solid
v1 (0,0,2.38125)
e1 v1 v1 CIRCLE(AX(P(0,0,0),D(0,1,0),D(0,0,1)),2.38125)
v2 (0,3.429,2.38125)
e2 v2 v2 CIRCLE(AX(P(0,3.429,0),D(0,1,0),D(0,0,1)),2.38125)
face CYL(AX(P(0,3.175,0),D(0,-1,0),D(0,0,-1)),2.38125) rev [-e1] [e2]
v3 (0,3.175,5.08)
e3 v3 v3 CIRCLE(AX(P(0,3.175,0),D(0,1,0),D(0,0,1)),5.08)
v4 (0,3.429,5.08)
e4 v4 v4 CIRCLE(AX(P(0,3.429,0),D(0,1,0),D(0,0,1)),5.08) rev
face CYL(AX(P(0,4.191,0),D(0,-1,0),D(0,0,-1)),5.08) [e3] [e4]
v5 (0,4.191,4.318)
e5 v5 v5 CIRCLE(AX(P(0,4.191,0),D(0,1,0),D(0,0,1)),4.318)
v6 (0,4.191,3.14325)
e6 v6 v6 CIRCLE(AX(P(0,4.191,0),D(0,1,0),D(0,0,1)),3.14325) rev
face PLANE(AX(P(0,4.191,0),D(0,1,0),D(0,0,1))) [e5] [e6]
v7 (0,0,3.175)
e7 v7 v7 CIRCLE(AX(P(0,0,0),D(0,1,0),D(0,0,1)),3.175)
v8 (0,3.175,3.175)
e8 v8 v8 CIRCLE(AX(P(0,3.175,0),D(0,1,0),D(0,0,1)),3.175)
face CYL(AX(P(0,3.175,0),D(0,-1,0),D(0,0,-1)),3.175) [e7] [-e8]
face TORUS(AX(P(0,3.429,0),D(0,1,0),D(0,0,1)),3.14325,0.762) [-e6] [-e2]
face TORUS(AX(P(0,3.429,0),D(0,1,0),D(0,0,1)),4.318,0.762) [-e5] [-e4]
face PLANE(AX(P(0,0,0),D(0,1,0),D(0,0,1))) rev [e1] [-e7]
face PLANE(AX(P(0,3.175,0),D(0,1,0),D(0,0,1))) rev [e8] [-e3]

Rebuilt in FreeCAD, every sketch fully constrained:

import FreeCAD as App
import Part
import Sketcher
Q = App.Units.Quantity


def edges_at(feature, points):
    """Names of the edges that pass closest to the given points."""
    edges = feature.Shape.Edges
    near = lambda p: min(range(len(edges)), key=lambda i: edges[i].distToShape(Part.Vertex(*p))[0])
    return sorted({f"Edge{near(p) + 1}" for p in points})

doc = App.newDocument("Part")
body = doc.addObject("PartDesign::Body", "Body")

# Sketch on XZ plane
sketch1 = body.newObject("Sketcher::SketchObject", "Sketch")
sketch1.AttachmentSupport = (doc.getObject("XZ_Plane"), [""])
sketch1.MapMode = "FlatFace"
sketch1.addGeometry(Part.Circle(App.Vector(0, 0, 0), App.Vector(0, 0, 1), 3.175), False)
sketch1.addGeometry(Part.Circle(App.Vector(0, 0, 0), App.Vector(0, 0, 1), 2.38125), False)
sketch1.addConstraint(Sketcher.Constraint("Coincident", 0, 3, -1, 1))
sketch1.addConstraint(Sketcher.Constraint("Coincident", 1, 3, -1, 1))
sketch1.addConstraint(Sketcher.Constraint("Diameter", 0, Q("0.25 in")))
sketch1.addConstraint(Sketcher.Constraint("Diameter", 1, Q("0.1875 in")))
pad1 = body.newObject("PartDesign::Pad", "Pad")
pad1.Profile = sketch1
pad1.Length = Q("0.125 in")
pad1.Reversed = True

# Sketch on XZ plane
sketch2 = body.newObject("Sketcher::SketchObject", "Sketch001")
sketch2.AttachmentSupport = (doc.getObject("XZ_Plane"), [""])
sketch2.MapMode = "FlatFace"
sketch2.AttachmentOffset = App.Placement(App.Vector(0, 0, -0.125 * 25.4), App.Rotation())
sketch2.addGeometry(Part.Circle(App.Vector(0, 0, 0), App.Vector(0, 0, 1), 5.08), False)
sketch2.addGeometry(Part.Circle(App.Vector(0, 0, 0), App.Vector(0, 0, 1), 2.38125), False)
sketch2.addConstraint(Sketcher.Constraint("Coincident", 0, 3, -1, 1))
sketch2.addConstraint(Sketcher.Constraint("Coincident", 1, 3, -1, 1))
sketch2.addConstraint(Sketcher.Constraint("Diameter", 0, Q("0.4 in")))
sketch2.addConstraint(Sketcher.Constraint("Diameter", 1, Q("0.1875 in")))
pad2 = body.newObject("PartDesign::Pad", "Pad001")
pad2.Profile = sketch2
pad2.Length = Q("0.04 in")
pad2.Reversed = True
doc.recompute()

fillet = body.newObject("PartDesign::Fillet", "Fillet")
fillet.Base = (pad2, edges_at(pad2, [(-2.381, 4.191, 0), (-5.08, 4.191, 0)]))
fillet.Radius = Q("0.03 in")

doc.recompute()
